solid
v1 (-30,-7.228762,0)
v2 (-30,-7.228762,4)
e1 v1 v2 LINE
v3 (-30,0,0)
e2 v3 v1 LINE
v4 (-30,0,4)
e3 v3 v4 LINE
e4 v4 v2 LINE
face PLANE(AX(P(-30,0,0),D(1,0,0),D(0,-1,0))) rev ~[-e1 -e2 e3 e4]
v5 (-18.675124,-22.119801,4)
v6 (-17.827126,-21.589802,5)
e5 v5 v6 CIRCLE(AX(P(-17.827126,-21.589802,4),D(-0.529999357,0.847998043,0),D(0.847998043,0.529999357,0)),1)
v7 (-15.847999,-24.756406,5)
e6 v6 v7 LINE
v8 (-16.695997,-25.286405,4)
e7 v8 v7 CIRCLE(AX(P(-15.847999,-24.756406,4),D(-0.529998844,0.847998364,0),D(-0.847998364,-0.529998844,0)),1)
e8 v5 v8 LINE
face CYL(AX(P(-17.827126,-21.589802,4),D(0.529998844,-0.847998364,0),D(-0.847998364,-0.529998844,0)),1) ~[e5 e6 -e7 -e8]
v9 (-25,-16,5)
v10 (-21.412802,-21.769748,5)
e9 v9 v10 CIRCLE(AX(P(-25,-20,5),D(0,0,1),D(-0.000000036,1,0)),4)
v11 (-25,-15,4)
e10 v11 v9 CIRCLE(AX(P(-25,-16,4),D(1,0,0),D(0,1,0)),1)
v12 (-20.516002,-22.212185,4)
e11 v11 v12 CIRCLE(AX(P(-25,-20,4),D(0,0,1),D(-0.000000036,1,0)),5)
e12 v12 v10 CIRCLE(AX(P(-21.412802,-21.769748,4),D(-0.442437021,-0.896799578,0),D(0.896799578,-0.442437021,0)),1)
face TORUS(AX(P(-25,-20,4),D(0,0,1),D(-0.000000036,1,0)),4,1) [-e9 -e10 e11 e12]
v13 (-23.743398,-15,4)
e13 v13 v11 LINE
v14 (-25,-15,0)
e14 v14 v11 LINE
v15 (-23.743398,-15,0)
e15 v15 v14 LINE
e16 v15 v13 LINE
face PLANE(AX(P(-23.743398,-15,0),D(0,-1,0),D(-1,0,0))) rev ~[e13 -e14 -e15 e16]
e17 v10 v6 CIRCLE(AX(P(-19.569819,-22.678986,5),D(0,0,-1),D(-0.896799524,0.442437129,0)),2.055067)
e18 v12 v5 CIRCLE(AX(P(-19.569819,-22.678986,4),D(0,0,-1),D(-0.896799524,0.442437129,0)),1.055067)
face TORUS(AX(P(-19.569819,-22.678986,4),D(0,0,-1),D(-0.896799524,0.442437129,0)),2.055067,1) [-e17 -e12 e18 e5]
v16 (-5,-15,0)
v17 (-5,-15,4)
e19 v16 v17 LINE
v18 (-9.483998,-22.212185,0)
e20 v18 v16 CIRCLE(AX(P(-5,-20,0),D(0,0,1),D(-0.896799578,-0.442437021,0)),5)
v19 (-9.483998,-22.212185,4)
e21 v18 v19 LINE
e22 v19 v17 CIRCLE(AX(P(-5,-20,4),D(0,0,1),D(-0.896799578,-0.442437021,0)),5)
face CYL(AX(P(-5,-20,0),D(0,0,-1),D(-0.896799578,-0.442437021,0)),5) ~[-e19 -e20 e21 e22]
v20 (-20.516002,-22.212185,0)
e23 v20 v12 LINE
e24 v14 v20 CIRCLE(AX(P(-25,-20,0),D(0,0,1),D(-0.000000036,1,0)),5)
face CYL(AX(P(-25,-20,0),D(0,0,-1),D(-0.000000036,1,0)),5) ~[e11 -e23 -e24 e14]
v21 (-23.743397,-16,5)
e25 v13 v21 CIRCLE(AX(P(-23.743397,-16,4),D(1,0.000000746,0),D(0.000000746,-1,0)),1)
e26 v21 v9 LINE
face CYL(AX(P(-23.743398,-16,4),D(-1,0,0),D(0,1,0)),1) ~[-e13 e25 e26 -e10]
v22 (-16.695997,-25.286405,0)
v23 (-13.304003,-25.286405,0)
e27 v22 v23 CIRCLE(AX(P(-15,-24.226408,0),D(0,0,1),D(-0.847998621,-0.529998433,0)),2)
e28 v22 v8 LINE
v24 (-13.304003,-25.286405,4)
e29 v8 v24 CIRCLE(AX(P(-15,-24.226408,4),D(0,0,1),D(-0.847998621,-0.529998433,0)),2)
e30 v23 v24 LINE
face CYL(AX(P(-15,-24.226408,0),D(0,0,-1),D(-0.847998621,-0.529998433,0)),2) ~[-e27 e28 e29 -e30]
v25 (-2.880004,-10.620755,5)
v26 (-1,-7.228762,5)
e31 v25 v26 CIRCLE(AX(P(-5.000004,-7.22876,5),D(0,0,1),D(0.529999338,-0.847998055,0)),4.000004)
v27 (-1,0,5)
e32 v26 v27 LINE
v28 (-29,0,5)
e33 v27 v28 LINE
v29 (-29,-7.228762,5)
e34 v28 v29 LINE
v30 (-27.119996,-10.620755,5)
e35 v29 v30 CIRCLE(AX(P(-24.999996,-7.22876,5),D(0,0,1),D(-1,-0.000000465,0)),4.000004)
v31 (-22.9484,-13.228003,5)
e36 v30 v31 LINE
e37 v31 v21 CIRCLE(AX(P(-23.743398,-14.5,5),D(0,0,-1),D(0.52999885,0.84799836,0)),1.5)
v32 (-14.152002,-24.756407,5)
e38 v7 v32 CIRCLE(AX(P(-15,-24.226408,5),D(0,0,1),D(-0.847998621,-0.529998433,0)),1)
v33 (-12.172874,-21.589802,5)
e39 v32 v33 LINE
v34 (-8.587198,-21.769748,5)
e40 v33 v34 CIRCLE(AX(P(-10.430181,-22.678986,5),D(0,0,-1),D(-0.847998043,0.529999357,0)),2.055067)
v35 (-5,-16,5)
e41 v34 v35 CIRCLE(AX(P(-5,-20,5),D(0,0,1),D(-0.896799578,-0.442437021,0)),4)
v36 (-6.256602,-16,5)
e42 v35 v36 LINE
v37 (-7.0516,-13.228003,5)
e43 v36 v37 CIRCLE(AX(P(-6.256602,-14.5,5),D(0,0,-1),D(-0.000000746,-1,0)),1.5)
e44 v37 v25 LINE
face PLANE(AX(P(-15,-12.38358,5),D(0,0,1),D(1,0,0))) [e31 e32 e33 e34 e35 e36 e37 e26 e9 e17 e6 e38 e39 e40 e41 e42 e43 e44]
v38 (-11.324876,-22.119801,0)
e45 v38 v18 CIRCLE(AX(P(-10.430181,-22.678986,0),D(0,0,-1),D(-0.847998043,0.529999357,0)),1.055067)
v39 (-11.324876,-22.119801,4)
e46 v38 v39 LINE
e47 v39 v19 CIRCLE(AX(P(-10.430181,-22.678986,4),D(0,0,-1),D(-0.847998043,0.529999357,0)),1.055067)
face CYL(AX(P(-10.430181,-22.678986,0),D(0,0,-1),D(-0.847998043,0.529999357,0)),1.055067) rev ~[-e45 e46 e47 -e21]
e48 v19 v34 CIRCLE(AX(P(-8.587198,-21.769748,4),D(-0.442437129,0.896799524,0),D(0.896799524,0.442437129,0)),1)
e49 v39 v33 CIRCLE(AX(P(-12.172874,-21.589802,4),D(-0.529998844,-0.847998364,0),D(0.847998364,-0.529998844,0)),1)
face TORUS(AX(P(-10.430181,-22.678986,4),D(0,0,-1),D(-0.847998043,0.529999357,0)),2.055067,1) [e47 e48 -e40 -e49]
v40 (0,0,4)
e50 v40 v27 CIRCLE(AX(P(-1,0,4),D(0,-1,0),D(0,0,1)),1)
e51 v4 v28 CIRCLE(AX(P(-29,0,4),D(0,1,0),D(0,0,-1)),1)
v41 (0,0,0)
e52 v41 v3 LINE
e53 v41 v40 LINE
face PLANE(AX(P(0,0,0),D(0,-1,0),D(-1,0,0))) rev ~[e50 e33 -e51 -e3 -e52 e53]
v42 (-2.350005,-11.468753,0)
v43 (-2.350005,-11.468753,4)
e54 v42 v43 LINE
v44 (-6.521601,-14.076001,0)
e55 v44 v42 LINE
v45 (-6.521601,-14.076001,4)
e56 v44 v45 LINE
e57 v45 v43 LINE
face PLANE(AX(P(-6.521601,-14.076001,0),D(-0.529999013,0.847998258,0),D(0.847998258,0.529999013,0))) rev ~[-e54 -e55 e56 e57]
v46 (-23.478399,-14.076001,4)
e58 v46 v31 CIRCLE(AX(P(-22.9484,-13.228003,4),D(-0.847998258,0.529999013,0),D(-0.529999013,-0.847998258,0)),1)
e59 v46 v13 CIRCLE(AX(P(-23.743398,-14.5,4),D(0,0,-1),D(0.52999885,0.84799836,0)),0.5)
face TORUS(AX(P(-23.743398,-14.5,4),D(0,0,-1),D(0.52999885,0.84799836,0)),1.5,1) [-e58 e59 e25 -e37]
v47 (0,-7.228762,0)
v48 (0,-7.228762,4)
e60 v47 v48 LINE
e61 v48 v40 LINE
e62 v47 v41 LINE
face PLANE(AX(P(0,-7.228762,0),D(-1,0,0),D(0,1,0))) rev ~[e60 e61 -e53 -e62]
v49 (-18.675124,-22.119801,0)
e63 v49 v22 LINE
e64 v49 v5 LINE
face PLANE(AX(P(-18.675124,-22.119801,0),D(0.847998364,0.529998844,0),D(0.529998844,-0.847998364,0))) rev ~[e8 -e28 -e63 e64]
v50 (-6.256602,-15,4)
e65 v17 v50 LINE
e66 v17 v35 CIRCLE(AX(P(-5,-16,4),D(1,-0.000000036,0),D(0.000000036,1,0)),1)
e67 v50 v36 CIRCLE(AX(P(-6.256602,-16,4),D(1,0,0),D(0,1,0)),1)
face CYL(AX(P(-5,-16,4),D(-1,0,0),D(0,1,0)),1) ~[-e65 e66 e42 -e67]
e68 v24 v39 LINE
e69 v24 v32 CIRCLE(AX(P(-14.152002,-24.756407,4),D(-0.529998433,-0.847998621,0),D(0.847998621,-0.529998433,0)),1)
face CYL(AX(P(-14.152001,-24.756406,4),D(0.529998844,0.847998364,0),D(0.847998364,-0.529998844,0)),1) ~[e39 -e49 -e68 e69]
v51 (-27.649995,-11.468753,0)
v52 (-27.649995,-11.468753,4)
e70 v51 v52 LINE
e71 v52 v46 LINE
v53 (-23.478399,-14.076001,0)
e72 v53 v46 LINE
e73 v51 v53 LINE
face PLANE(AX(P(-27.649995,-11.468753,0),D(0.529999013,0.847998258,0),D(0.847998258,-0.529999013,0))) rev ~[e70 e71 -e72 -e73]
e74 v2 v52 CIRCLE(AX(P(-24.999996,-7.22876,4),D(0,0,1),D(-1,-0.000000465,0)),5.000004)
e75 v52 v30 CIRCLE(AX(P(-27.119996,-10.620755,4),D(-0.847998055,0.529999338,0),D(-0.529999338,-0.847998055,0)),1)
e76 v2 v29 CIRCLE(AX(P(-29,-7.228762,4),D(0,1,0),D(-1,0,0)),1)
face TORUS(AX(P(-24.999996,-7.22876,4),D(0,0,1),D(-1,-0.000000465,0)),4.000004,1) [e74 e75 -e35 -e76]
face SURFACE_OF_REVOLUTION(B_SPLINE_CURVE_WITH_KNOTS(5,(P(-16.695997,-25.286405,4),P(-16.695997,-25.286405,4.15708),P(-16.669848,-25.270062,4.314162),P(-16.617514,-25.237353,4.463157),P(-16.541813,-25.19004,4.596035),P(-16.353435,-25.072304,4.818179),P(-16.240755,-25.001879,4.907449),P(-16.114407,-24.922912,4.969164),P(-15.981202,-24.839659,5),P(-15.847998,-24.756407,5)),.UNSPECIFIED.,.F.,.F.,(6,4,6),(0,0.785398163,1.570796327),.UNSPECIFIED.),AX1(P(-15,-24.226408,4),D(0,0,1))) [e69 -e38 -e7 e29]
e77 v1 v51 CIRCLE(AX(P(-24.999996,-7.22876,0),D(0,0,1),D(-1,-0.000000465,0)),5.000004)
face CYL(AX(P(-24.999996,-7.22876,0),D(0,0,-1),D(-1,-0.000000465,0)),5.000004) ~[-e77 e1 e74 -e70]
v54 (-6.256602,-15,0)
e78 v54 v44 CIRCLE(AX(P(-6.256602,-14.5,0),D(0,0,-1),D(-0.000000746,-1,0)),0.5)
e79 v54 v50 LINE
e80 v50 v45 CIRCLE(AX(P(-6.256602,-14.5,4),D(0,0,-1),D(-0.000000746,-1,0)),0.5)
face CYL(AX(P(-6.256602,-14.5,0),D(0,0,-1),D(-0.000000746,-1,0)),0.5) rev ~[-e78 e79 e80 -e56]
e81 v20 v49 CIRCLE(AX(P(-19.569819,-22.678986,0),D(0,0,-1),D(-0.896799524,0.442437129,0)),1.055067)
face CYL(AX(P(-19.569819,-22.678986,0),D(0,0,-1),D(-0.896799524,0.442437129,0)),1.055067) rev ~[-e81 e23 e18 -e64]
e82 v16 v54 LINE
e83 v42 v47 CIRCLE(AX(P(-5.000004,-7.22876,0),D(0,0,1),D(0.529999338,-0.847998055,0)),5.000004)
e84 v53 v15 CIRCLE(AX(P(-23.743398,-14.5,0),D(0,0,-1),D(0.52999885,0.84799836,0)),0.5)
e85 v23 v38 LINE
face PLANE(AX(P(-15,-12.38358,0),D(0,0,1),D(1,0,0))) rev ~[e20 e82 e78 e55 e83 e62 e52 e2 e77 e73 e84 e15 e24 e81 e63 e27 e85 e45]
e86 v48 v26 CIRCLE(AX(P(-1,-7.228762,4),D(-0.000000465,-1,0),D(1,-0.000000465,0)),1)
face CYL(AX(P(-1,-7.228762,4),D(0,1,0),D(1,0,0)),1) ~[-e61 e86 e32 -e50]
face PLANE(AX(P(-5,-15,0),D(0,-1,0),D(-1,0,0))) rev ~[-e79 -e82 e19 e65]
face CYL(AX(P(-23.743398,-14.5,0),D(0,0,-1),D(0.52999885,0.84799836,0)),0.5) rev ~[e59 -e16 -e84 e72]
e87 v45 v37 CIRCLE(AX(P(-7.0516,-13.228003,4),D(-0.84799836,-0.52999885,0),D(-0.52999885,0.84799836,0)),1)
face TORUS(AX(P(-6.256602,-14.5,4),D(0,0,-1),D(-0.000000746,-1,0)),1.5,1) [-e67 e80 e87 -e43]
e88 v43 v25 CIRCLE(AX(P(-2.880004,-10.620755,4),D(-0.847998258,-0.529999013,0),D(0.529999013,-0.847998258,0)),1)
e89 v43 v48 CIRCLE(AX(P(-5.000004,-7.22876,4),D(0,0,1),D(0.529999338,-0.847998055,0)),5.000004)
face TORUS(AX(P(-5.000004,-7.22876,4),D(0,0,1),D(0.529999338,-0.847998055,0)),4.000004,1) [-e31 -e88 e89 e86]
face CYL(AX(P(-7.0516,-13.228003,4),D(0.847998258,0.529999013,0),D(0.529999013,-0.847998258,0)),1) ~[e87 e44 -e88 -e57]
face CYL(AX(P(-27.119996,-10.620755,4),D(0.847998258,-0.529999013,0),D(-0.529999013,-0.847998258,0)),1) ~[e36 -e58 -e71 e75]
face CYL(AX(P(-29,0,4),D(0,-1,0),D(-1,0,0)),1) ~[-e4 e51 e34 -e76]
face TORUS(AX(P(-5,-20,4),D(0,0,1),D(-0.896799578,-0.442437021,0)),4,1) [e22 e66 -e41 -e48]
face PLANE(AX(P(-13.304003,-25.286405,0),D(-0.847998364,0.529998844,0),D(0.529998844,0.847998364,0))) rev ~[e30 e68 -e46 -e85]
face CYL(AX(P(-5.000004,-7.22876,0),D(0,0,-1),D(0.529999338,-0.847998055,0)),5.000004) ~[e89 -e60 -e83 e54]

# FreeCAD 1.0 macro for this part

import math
import FreeCAD as App
import Part
import Sketcher
from FreeCAD import Vector


def edges_at(feature, points):
    """Names of the edges that pass closest to the given points."""
    edges = feature.Shape.Edges
    near = lambda p: min(range(len(edges)), key=lambda i: edges[i].distToShape(Part.Vertex(*p))[0])
    return sorted({f"Edge{near(p) + 1}" for p in points})

doc = App.newDocument("Part")
body = doc.addObject("PartDesign::Body", "Body")

# Sketch on XY plane
sketch1 = doc.addObject("Sketcher::SketchObject", "Sketch")
body.addObject(sketch1)
sketch1.AttachmentSupport = (doc.XY_Plane, [""])
sketch1.MapMode = "FlatFace"
sketch1.addGeometry(Part.ArcOfCircle(Part.Circle(Vector(-10.430181, -22.678986, 0), Vector(0, 0, 1), 1.055067), math.radians(26.259483), math.radians(147.994589)), False)
sketch1.addGeometry(Part.ArcOfCircle(Part.Circle(Vector(-5, -20, 0), Vector(0, 0, 1), 5), math.radians(-153.740524), math.radians(89.999998)), False)
sketch1.addGeometry(Part.LineSegment(Vector(-5, -15, 0), Vector(-6.256602, -15, 0)), False)
sketch1.addGeometry(Part.ArcOfCircle(Part.Circle(Vector(-6.256602, -14.5, 0), Vector(0, 0, 1), 0.5), math.radians(122.005377), math.radians(269.999957)), False)
sketch1.addGeometry(Part.LineSegment(Vector(-6.521601, -14.076001, 0), Vector(-2.350005, -11.468753, 0)), False)
sketch1.addGeometry(Part.ArcOfCircle(Part.Circle(Vector(-5.000004, -7.22876, 0), Vector(0, 0, 1), 5.000004), math.radians(-57.99459), math.radians(-0.000027)), False)
sketch1.addGeometry(Part.LineSegment(Vector(0, -7.228762, 0), Vector(0, 0, 0)), False)
sketch1.addGeometry(Part.LineSegment(Vector(0, 0, 0), Vector(-30, 0, 0)), False)
sketch1.addGeometry(Part.LineSegment(Vector(-30, 0, 0), Vector(-30, -7.228762, 0)), False)
sketch1.addGeometry(Part.ArcOfCircle(Part.Circle(Vector(-24.999996, -7.22876, 0), Vector(0, 0, 1), 5.000004), math.radians(-179.999973), math.radians(-122.00541)), False)
sketch1.addGeometry(Part.LineSegment(Vector(-27.649995, -11.468753, 0), Vector(-23.478399, -14.076001, 0)), False)
sketch1.addGeometry(Part.ArcOfCircle(Part.Circle(Vector(-23.743398, -14.5, 0), Vector(0, 0, 1), 0.5), math.radians(-89.999957), math.radians(57.994623)), False)
sketch1.addGeometry(Part.LineSegment(Vector(-23.743398, -15, 0), Vector(-25, -15, 0)), False)
sketch1.addGeometry(Part.ArcOfCircle(Part.Circle(Vector(-25, -20, 0), Vector(0, 0, 1), 5), math.radians(90.000002), math.radians(333.740524)), False)
sketch1.addGeometry(Part.ArcOfCircle(Part.Circle(Vector(-19.569819, -22.678986, 0), Vector(0, 0, 1), 1.055067), math.radians(32.005411), math.radians(153.740517)), False)
sketch1.addGeometry(Part.LineSegment(Vector(-18.675124, -22.119801, 0), Vector(-16.695997, -25.286405, 0)), False)
sketch1.addGeometry(Part.ArcOfCircle(Part.Circle(Vector(-15, -24.226408, 0), Vector(0, 0, 1), 2), math.radians(-147.994651), math.radians(-32.005349)), False)
sketch1.addGeometry(Part.LineSegment(Vector(-13.304003, -25.286405, 0), Vector(-11.324876, -22.119801, 0)), False)
sketch1.addConstraint(Sketcher.Constraint("Tangent", 0, 1, 1, 1))
sketch1.addConstraint(Sketcher.Constraint("Tangent", 1, 2, 2, 1))
sketch1.addConstraint(Sketcher.Constraint("Tangent", 2, 2, 3, 2))
sketch1.addConstraint(Sketcher.Constraint("Tangent", 3, 1, 4, 1))
sketch1.addConstraint(Sketcher.Constraint("Tangent", 4, 2, 5, 1))
sketch1.addConstraint(Sketcher.Constraint("Tangent", 5, 2, 6, 1))
sketch1.addConstraint(Sketcher.Constraint("Coincident", 6, 2, 7, 1))
sketch1.addConstraint(Sketcher.Constraint("Coincident", 7, 2, 8, 1))
sketch1.addConstraint(Sketcher.Constraint("Tangent", 8, 2, 9, 1))
sketch1.addConstraint(Sketcher.Constraint("Tangent", 9, 2, 10, 1))
sketch1.addConstraint(Sketcher.Constraint("Tangent", 10, 2, 11, 2))
sketch1.addConstraint(Sketcher.Constraint("Tangent", 11, 1, 12, 1))
sketch1.addConstraint(Sketcher.Constraint("Tangent", 12, 2, 13, 1))
sketch1.addConstraint(Sketcher.Constraint("Tangent", 13, 2, 14, 2))
sketch1.addConstraint(Sketcher.Constraint("Tangent", 14, 1, 15, 1))
sketch1.addConstraint(Sketcher.Constraint("Tangent", 15, 2, 16, 1))
sketch1.addConstraint(Sketcher.Constraint("Tangent", 16, 2, 17, 1))
sketch1.addConstraint(Sketcher.Constraint("Tangent", 17, 2, 0, 2))
sketch1.addConstraint(Sketcher.Constraint("Horizontal", 2))
sketch1.addConstraint(Sketcher.Constraint("Vertical", 6))
sketch1.addConstraint(Sketcher.Constraint("Horizontal", 7))
sketch1.addConstraint(Sketcher.Constraint("Vertical", 8))
sketch1.addConstraint(Sketcher.Constraint("Horizontal", 12))
sketch1.addConstraint(Sketcher.Constraint("Coincident", 6, 2, -1, 1))
sketch1.addConstraint(Sketcher.Constraint("Equal", 5, 9))
sketch1.addConstraint(Sketcher.Constraint("Equal", 3, 11))
sketch1.addConstraint(Sketcher.Constraint("Equal", 1, 13))
sketch1.addConstraint(Sketcher.Constraint("Equal", 0, 14))
sketch1.addConstraint(Sketcher.Constraint("Perpendicular", 4, 15))
sketch1.addConstraint(Sketcher.Constraint("Perpendicular", 10, 17))
sketch1.addConstraint(Sketcher.Constraint("Horizontal", 5, 3, 9, 3))
sketch1.addConstraint(Sketcher.Constraint("Horizontal", 3, 3, 11, 3))
sketch1.addConstraint(Sketcher.Constraint("Horizontal", 0, 3, 14, 3))
sketch1.addConstraint(Sketcher.Constraint("Horizontal", 4, 2, 9, 2))
sketch1.addConstraint(Sketcher.Constraint("Equal", 2, 12))
sketch1.addConstraint(Sketcher.Constraint("Radius", 1, 5.0))
sketch1.addConstraint(Sketcher.Constraint("Radius", 16, 2.0))
sketch1.addConstraint(Sketcher.Constraint("Radius", 3, 0.5))
sketch1.addConstraint(Sketcher.Constraint("DistanceX", 7, 2, 7, 1, 30.0))
sketch1.addConstraint(Sketcher.Constraint("DistanceX", 1, 3, -1, 1, 5.0))
sketch1.addConstraint(Sketcher.Constraint("DistanceY", 1, 3, -1, 1, 20.0))
sketch1.addConstraint(Sketcher.Constraint("DistanceX", 5, 3, 4, 2, 2.649999))
sketch1.addConstraint(Sketcher.Constraint("DistanceY", 3, 1, -1, 1, 14.076001))
sketch1.addConstraint(Sketcher.Constraint("Radius", 0, 1.055067))
sketch1.addConstraint(Sketcher.Constraint("DistanceY", 6, 1, 6, 2, 7.228762))
sketch1.addConstraint(Sketcher.Constraint("DistanceY", 14, 1, -1, 1, 22.119801))
pad1 = doc.addObject("PartDesign::Pad", "Pad")
body.addObject(pad1)
pad1.Profile = sketch1
pad1.Length = 5
doc.recompute()

fillet = doc.addObject("PartDesign::Fillet", "Fillet")
body.addObject(fillet)
fillet.Base = (pad1, edges_at(pad1, [(-29.246, -22.64, 5)]))
fillet.Radius = 1

doc.recompute()
